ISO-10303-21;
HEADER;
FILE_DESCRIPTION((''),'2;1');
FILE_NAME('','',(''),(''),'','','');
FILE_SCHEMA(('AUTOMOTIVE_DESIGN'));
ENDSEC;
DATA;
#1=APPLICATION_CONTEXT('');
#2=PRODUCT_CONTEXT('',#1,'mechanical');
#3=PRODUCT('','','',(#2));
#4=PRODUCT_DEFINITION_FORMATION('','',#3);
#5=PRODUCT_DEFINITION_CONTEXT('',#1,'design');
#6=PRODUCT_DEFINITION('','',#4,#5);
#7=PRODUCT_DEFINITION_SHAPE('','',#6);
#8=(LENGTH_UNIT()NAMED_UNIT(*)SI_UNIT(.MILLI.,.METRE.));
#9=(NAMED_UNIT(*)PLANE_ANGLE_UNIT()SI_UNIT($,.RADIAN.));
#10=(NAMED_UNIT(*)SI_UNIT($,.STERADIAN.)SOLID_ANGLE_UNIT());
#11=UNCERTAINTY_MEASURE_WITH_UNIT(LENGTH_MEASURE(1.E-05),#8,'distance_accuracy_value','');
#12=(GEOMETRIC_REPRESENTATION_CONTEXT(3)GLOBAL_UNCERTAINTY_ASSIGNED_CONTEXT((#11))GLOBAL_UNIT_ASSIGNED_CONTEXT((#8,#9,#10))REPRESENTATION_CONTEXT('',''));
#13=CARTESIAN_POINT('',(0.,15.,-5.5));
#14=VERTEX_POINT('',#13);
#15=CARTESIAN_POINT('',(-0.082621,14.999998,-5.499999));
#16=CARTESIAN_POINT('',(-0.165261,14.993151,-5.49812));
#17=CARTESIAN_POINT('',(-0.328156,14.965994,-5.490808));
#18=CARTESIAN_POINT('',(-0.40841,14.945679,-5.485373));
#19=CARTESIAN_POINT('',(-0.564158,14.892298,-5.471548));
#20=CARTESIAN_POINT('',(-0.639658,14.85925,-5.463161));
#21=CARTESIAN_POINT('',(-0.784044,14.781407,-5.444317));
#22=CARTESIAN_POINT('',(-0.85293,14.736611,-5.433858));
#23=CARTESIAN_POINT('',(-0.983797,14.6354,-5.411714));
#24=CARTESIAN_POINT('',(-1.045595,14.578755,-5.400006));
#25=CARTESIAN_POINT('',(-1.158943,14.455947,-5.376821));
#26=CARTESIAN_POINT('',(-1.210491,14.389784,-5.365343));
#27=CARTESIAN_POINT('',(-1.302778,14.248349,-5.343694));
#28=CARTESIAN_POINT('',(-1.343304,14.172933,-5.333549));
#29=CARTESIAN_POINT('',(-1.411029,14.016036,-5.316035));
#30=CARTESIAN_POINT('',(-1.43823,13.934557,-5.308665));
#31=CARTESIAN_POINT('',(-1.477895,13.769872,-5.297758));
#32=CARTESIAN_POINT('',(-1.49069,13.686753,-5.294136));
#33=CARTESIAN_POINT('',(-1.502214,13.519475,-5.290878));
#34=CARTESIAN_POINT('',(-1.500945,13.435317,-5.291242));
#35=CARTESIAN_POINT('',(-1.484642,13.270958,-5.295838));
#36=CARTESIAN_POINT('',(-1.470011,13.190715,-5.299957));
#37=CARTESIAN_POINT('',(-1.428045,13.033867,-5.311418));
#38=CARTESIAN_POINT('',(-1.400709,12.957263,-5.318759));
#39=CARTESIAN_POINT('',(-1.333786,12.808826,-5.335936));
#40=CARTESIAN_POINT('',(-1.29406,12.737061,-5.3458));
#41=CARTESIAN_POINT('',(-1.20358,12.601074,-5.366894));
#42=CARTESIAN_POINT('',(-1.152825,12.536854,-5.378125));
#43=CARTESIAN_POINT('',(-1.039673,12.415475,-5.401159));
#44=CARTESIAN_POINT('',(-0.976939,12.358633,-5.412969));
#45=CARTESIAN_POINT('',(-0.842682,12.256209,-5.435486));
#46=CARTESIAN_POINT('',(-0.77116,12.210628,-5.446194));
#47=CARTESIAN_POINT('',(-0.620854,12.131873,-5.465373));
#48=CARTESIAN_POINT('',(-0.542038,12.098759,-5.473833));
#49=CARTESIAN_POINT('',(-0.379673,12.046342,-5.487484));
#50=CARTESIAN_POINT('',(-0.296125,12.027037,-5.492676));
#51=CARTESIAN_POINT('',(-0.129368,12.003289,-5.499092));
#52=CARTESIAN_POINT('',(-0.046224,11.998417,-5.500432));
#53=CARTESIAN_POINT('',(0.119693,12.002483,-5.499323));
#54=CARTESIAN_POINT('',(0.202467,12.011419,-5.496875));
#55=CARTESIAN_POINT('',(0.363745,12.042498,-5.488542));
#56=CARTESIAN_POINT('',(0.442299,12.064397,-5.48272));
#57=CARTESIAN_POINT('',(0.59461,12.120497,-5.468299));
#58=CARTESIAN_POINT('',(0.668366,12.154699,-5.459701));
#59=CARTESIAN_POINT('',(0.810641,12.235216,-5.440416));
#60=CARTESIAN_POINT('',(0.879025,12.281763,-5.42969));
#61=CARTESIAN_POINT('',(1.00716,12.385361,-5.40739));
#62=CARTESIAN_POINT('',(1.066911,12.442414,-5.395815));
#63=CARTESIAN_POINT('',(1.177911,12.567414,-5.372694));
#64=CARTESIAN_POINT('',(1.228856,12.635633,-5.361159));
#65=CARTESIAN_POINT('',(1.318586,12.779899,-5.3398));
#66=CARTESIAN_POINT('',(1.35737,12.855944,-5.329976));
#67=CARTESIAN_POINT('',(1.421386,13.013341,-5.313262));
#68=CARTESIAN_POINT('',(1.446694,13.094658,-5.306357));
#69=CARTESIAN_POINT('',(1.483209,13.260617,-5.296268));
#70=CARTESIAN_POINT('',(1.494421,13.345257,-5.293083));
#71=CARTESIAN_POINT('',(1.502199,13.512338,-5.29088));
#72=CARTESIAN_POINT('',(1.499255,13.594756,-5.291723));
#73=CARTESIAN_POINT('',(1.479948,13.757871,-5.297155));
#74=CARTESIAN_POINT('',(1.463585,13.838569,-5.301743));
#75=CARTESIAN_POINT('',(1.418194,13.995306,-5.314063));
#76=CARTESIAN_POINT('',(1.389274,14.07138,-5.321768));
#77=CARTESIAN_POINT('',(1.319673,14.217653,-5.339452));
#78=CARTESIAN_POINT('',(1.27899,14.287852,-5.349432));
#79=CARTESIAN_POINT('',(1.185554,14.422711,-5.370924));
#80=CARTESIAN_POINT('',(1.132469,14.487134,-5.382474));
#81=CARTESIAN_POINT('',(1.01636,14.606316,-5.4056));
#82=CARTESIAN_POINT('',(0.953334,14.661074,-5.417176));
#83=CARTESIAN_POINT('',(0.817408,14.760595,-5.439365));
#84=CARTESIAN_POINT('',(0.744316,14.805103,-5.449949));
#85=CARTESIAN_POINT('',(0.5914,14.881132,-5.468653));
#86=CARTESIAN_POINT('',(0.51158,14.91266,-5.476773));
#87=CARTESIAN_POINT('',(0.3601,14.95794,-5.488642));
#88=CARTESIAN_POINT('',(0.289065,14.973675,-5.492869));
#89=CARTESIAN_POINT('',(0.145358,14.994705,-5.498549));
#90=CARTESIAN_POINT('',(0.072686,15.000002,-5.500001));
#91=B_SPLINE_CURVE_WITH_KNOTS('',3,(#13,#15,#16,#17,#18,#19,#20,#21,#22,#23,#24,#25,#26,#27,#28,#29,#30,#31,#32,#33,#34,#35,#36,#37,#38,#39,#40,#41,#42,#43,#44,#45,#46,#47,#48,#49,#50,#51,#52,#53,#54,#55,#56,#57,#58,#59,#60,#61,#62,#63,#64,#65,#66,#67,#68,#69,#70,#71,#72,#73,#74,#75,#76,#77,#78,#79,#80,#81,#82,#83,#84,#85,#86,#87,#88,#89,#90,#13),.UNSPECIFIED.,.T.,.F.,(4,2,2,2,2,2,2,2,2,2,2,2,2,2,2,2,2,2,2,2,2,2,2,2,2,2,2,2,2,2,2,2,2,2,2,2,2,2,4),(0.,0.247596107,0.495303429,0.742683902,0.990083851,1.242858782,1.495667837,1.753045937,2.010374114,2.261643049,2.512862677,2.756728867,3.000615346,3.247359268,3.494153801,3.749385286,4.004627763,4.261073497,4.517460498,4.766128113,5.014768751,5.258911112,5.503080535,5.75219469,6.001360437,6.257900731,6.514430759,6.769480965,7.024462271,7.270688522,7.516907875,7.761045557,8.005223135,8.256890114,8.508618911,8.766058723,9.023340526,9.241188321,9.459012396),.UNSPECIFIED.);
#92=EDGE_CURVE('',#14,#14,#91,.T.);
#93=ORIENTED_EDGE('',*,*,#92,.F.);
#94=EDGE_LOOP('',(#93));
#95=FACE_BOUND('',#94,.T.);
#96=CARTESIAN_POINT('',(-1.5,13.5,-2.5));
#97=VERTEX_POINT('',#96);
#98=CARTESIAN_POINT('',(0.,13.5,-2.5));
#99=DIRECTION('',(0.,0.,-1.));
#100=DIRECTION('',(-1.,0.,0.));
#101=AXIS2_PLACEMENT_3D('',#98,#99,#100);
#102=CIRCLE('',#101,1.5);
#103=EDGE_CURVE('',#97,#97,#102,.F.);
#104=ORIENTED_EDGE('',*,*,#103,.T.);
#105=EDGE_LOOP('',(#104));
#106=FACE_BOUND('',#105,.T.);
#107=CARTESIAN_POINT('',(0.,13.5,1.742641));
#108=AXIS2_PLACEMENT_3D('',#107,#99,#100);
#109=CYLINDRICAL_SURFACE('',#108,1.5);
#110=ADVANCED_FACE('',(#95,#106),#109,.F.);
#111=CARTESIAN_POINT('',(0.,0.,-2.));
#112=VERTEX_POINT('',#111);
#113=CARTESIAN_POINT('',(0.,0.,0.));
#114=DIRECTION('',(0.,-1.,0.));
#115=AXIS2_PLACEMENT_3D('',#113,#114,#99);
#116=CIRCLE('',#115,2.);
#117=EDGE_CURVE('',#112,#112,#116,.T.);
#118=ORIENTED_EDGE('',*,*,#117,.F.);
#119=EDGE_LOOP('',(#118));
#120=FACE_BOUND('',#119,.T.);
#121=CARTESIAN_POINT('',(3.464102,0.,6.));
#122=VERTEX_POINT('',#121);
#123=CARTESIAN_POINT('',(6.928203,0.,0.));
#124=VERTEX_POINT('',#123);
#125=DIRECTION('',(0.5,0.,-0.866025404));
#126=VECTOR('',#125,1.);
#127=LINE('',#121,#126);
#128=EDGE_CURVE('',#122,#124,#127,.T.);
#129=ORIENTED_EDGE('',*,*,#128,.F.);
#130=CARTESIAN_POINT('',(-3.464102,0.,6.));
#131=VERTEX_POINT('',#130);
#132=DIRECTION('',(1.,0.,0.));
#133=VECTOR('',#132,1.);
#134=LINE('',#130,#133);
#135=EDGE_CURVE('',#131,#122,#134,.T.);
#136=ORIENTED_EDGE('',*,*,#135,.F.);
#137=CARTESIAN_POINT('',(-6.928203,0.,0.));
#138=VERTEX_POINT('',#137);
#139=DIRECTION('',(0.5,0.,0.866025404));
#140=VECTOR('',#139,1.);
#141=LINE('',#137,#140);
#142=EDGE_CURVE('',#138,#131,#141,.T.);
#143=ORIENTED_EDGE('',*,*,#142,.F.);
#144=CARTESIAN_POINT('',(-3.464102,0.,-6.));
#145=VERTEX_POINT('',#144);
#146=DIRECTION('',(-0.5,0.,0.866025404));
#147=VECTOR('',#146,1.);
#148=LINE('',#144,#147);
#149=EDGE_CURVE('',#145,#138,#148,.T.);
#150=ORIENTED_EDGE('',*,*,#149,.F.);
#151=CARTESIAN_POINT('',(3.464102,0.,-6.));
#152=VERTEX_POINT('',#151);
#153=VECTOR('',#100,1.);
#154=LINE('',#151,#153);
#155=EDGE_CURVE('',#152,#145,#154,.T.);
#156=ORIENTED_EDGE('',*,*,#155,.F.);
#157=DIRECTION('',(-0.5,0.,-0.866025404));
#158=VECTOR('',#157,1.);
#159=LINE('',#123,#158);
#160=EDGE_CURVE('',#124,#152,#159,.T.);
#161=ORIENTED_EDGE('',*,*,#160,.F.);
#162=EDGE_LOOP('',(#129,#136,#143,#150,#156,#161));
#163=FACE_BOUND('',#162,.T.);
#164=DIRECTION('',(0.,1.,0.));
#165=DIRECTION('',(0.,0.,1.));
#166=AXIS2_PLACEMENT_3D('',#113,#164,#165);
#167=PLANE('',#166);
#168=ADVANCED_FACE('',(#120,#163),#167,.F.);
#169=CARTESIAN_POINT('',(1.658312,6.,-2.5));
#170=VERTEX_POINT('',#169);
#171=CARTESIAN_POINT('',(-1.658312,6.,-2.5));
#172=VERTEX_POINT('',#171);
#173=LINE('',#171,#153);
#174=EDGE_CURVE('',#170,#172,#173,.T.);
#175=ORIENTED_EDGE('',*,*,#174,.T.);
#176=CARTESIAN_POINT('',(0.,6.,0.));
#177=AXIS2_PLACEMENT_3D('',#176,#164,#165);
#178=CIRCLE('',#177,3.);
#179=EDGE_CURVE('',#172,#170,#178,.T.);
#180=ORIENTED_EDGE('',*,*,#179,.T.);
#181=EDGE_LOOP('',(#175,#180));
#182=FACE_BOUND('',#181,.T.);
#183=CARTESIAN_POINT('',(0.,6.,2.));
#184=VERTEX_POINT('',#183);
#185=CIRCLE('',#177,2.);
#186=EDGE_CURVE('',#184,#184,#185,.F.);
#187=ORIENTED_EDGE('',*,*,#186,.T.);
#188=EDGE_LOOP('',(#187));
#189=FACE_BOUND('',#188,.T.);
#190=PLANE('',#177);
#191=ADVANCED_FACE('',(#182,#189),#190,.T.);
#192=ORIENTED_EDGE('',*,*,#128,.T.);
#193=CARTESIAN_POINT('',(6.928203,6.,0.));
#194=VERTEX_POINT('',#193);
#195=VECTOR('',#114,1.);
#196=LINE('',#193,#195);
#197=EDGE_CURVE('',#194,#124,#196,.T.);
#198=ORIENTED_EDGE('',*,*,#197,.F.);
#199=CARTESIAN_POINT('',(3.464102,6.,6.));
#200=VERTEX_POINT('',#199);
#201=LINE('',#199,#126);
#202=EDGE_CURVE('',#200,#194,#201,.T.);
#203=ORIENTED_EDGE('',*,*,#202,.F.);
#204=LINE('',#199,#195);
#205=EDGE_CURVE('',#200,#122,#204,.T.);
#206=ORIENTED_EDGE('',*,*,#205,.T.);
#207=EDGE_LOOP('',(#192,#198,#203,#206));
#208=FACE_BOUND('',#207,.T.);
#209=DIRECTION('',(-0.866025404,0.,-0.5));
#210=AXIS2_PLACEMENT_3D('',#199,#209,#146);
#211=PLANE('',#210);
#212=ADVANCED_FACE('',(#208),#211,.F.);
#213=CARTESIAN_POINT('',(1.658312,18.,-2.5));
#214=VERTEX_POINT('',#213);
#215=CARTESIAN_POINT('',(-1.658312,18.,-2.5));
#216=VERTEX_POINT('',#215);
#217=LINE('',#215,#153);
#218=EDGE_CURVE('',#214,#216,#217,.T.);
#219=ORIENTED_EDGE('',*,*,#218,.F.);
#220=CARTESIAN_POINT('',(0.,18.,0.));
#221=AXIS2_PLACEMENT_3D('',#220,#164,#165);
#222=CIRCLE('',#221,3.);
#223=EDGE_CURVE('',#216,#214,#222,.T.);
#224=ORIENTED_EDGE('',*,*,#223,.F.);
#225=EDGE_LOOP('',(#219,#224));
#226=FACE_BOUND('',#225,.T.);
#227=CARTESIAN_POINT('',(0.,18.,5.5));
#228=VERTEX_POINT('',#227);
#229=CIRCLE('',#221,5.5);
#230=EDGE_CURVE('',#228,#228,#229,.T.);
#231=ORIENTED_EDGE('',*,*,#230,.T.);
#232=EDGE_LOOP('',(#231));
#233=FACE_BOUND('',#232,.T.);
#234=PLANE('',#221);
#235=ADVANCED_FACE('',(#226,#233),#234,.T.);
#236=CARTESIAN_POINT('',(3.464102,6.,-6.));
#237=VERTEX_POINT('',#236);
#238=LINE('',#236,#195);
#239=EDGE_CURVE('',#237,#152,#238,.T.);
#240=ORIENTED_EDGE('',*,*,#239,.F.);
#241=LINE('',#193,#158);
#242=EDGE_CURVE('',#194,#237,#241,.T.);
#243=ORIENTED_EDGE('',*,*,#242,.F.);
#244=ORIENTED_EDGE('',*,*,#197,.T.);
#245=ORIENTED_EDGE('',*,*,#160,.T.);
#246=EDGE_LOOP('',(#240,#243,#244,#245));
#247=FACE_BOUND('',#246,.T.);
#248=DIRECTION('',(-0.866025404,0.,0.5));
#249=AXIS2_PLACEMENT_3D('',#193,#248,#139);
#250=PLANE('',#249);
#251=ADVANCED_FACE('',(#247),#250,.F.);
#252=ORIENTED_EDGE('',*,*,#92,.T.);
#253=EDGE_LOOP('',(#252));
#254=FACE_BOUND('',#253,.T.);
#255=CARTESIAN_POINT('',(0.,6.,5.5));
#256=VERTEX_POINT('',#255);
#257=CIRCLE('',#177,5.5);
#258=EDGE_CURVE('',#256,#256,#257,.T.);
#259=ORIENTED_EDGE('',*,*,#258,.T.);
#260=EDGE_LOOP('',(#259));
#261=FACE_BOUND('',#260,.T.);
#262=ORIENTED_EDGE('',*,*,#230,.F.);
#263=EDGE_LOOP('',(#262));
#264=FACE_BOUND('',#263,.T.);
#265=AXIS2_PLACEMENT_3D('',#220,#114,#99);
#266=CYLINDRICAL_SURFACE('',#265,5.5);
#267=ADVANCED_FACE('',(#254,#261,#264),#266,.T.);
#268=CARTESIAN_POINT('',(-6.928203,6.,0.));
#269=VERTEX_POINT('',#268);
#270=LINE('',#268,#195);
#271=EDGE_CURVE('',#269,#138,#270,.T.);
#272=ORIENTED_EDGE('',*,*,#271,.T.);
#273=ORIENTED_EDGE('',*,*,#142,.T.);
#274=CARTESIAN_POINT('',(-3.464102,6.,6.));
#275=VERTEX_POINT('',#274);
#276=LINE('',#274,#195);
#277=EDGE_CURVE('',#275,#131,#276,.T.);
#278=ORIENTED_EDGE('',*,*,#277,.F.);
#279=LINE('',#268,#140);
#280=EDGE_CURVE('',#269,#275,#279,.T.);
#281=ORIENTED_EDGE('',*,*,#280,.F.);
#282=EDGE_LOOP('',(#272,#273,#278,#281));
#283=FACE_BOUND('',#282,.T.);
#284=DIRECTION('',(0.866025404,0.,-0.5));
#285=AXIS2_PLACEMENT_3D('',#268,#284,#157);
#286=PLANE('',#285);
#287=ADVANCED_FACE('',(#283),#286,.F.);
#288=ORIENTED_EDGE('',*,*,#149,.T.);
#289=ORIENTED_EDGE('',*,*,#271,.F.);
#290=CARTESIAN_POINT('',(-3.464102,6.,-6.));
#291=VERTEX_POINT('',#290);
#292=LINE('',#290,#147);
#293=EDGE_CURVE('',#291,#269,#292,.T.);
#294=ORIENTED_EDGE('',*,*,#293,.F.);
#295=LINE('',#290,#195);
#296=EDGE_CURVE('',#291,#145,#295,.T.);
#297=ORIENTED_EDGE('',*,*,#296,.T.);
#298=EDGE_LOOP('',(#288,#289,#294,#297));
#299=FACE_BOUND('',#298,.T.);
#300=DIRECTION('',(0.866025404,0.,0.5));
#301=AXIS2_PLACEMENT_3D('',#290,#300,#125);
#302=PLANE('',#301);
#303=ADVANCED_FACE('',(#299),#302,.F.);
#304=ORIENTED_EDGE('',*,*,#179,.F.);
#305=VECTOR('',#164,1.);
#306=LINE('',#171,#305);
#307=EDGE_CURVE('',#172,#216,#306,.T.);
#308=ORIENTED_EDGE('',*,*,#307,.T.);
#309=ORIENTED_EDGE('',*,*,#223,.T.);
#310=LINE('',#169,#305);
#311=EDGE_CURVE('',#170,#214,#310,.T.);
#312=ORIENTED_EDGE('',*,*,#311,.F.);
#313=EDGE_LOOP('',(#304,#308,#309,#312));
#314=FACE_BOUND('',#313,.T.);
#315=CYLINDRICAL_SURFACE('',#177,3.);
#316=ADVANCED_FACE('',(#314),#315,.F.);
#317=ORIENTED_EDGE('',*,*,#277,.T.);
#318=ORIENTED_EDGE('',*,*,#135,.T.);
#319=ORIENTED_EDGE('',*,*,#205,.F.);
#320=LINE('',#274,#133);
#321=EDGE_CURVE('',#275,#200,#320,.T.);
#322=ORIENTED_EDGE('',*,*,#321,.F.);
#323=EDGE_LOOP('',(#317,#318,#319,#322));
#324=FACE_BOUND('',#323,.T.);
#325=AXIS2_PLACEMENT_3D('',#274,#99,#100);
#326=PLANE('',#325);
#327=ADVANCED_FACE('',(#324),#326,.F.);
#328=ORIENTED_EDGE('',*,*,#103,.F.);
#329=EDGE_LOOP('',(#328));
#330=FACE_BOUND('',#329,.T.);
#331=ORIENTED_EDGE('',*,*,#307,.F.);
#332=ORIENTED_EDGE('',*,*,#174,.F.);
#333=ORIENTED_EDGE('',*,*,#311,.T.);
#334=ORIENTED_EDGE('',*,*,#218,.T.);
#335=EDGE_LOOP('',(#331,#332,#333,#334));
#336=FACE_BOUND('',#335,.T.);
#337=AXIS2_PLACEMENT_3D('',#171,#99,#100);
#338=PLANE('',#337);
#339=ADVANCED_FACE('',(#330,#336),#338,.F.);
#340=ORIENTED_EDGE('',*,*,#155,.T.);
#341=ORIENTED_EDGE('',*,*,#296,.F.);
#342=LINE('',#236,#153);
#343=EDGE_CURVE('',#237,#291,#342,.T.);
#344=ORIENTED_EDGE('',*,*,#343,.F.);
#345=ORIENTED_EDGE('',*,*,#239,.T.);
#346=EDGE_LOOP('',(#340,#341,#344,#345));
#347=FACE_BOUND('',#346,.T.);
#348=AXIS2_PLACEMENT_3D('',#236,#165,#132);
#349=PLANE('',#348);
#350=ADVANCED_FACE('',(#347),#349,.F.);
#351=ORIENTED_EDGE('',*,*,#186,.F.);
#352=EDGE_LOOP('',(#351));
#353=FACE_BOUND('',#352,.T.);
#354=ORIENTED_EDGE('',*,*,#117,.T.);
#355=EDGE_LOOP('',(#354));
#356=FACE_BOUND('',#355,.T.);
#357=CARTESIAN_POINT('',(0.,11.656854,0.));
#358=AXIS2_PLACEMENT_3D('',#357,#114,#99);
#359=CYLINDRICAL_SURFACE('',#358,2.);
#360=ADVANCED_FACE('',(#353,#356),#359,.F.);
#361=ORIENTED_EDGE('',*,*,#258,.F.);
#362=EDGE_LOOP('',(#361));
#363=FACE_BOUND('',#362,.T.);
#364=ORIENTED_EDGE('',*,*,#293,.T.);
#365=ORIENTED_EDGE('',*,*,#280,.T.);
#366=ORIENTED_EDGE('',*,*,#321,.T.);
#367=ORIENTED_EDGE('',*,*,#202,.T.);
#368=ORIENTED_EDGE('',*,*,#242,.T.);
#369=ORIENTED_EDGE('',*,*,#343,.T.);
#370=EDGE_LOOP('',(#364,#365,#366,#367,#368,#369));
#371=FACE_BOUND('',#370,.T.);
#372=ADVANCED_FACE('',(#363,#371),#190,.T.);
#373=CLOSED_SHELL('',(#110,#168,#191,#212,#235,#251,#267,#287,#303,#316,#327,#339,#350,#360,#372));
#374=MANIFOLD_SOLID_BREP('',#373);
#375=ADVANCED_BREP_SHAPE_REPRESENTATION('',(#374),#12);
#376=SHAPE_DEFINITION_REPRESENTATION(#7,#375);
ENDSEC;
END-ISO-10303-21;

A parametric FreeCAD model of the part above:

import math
import FreeCAD as App
import Part
import Sketcher
from FreeCAD import Vector
Q = App.Units.Quantity


def add_polygon(sketch, points):
    """Adds a closed chain of lines whose ends are joined by coincident constraints."""
    first, n = sketch.GeometryCount, len(points)
    for a, b in zip(points, points[1:] + points[:1]):
        sketch.addGeometry(Part.LineSegment(App.Vector(*a, 0), App.Vector(*b, 0)), False)
    for i in range(n):
        sketch.addConstraint(Sketcher.Constraint("Coincident", first + i, 2, first + (i + 1) % n, 1))

doc = App.newDocument("Part")
body = doc.addObject("PartDesign::Body", "Body")

# Sketch on XZ plane
sketch1 = body.newObject("Sketcher::SketchObject", "Sketch")
sketch1.AttachmentSupport = (doc.getObject("XZ_Plane"), [""])
sketch1.MapMode = "FlatFace"
add_polygon(sketch1, [(7, 0), (3, -6), (-3, -6), (-7, 0), (-3, 6), (3, 6)])  # lines 0-5
sketch1.addConstraint([
    Sketcher.Constraint("Horizontal", 1),
    Sketcher.Constraint("Horizontal", 4),
    Sketcher.Constraint("Symmetric", 0, 2, 3, 2, -1, 1),
    Sketcher.Constraint("Symmetric", 2, 2, 5, 2, -1, 1),
    Sketcher.Constraint("PointOnObject", 2, 2, -1),
    Sketcher.Constraint("Parallel", 2, 5),
    Sketcher.Constraint("Vertical", 1, 2, 3, 2),
    Sketcher.Constraint("Angle", 0, Q("-120 deg")),
    Sketcher.Constraint("DistanceY", 0, 2, -1, 1, 6.0),
    Sketcher.Constraint("DistanceX", -1, 1, 0, 2, 3.464102),
])
pad1 = body.newObject("PartDesign::Pad", "Pad")
pad1.Profile = sketch1
pad1.Length = 6
pad1.Reversed = True

# Sketch on XZ plane
sketch2 = body.newObject("Sketcher::SketchObject", "Sketch001")
sketch2.AttachmentSupport = (doc.getObject("XZ_Plane"), [""])
sketch2.MapMode = "FlatFace"
sketch2.AttachmentOffset = App.Placement(Vector(0, 0, -6), App.Rotation())
sketch2.addGeometry(Part.Circle(Vector(0, 0, 0), Vector(0, 0, 1), 6), False)
sketch2.addConstraint([
    Sketcher.Constraint("Coincident", 0, 3, -1, 1),
    Sketcher.Constraint("Diameter", 0, 11.0),
])
pad2 = body.newObject("PartDesign::Pad", "Pad001")
pad2.Profile = sketch2
pad2.Length = 12
pad2.Reversed = True

# Sketch on XZ plane
sketch3 = body.newObject("Sketcher::SketchObject", "Sketch002")
sketch3.AttachmentSupport = (doc.getObject("XZ_Plane"), [""])
sketch3.MapMode = "FlatFace"
sketch3.AttachmentOffset = App.Placement(Vector(0, 0, -18), App.Rotation())
sketch3.addGeometry([
    Part.LineSegment(Vector(1.7, -2.5, 0), Vector(-1.7, -2.5, 0)),
    Part.ArcOfCircle(Part.Circle(Vector(0, 0, 0), Vector(0, 0, 1), 3), math.radians(-56), math.radians(236)),
], False)
sketch3.addConstraint([
    Sketcher.Constraint("Coincident", 0, 1, 1, 1),
    Sketcher.Constraint("Coincident", 1, 2, 0, 2),
    Sketcher.Constraint("Horizontal", 0),
    Sketcher.Constraint("Coincident", 1, 3, -1, 1),
    Sketcher.Constraint("Radius", 1, 3.0),
    Sketcher.Constraint("DistanceY", 0, 1, -1, 1, 2.5),
])
pocket1 = body.newObject("PartDesign::Pocket", "Pocket")
pocket1.Profile = sketch3
pocket1.Length = 12
pocket1.Reversed = True

# Sketch on XY plane
sketch4 = body.newObject("Sketcher::SketchObject", "Sketch003")
sketch4.AttachmentSupport = (doc.getObject("XY_Plane"), [""])
sketch4.MapMode = "FlatFace"
sketch4.AttachmentOffset = App.Placement(Vector(0, 0, -6), App.Rotation())
sketch4.addGeometry(Part.Circle(Vector(0, 13.5, 0), Vector(0, 0, 1), 1.5), False)
sketch4.addConstraint([
    Sketcher.Constraint("PointOnObject", 0, 3, -2),
    Sketcher.Constraint("Diameter", 0, 3.0),
    Sketcher.Constraint("DistanceY", -1, 1, 0, 3, 13.5),
])
pocket2 = body.newObject("PartDesign::Pocket", "Pocket001")
pocket2.Profile = sketch4
pocket2.Length = 3.5
pocket2.Reversed = True

# Sketch on XZ plane
sketch5 = body.newObject("Sketcher::SketchObject", "Sketch004")
sketch5.AttachmentSupport = (doc.getObject("XZ_Plane"), [""])
sketch5.MapMode = "FlatFace"
sketch5.addGeometry(Part.Circle(Vector(0, 0, 0), Vector(0, 0, 1), 2), False)
sketch5.addConstraint([
    Sketcher.Constraint("Coincident", 0, 3, -1, 1),
    Sketcher.Constraint("Diameter", 0, 4.0),
])
pocket3 = body.newObject("PartDesign::Pocket", "Pocket002")
pocket3.Profile = sketch5
pocket3.Length = 6

doc.recompute()
